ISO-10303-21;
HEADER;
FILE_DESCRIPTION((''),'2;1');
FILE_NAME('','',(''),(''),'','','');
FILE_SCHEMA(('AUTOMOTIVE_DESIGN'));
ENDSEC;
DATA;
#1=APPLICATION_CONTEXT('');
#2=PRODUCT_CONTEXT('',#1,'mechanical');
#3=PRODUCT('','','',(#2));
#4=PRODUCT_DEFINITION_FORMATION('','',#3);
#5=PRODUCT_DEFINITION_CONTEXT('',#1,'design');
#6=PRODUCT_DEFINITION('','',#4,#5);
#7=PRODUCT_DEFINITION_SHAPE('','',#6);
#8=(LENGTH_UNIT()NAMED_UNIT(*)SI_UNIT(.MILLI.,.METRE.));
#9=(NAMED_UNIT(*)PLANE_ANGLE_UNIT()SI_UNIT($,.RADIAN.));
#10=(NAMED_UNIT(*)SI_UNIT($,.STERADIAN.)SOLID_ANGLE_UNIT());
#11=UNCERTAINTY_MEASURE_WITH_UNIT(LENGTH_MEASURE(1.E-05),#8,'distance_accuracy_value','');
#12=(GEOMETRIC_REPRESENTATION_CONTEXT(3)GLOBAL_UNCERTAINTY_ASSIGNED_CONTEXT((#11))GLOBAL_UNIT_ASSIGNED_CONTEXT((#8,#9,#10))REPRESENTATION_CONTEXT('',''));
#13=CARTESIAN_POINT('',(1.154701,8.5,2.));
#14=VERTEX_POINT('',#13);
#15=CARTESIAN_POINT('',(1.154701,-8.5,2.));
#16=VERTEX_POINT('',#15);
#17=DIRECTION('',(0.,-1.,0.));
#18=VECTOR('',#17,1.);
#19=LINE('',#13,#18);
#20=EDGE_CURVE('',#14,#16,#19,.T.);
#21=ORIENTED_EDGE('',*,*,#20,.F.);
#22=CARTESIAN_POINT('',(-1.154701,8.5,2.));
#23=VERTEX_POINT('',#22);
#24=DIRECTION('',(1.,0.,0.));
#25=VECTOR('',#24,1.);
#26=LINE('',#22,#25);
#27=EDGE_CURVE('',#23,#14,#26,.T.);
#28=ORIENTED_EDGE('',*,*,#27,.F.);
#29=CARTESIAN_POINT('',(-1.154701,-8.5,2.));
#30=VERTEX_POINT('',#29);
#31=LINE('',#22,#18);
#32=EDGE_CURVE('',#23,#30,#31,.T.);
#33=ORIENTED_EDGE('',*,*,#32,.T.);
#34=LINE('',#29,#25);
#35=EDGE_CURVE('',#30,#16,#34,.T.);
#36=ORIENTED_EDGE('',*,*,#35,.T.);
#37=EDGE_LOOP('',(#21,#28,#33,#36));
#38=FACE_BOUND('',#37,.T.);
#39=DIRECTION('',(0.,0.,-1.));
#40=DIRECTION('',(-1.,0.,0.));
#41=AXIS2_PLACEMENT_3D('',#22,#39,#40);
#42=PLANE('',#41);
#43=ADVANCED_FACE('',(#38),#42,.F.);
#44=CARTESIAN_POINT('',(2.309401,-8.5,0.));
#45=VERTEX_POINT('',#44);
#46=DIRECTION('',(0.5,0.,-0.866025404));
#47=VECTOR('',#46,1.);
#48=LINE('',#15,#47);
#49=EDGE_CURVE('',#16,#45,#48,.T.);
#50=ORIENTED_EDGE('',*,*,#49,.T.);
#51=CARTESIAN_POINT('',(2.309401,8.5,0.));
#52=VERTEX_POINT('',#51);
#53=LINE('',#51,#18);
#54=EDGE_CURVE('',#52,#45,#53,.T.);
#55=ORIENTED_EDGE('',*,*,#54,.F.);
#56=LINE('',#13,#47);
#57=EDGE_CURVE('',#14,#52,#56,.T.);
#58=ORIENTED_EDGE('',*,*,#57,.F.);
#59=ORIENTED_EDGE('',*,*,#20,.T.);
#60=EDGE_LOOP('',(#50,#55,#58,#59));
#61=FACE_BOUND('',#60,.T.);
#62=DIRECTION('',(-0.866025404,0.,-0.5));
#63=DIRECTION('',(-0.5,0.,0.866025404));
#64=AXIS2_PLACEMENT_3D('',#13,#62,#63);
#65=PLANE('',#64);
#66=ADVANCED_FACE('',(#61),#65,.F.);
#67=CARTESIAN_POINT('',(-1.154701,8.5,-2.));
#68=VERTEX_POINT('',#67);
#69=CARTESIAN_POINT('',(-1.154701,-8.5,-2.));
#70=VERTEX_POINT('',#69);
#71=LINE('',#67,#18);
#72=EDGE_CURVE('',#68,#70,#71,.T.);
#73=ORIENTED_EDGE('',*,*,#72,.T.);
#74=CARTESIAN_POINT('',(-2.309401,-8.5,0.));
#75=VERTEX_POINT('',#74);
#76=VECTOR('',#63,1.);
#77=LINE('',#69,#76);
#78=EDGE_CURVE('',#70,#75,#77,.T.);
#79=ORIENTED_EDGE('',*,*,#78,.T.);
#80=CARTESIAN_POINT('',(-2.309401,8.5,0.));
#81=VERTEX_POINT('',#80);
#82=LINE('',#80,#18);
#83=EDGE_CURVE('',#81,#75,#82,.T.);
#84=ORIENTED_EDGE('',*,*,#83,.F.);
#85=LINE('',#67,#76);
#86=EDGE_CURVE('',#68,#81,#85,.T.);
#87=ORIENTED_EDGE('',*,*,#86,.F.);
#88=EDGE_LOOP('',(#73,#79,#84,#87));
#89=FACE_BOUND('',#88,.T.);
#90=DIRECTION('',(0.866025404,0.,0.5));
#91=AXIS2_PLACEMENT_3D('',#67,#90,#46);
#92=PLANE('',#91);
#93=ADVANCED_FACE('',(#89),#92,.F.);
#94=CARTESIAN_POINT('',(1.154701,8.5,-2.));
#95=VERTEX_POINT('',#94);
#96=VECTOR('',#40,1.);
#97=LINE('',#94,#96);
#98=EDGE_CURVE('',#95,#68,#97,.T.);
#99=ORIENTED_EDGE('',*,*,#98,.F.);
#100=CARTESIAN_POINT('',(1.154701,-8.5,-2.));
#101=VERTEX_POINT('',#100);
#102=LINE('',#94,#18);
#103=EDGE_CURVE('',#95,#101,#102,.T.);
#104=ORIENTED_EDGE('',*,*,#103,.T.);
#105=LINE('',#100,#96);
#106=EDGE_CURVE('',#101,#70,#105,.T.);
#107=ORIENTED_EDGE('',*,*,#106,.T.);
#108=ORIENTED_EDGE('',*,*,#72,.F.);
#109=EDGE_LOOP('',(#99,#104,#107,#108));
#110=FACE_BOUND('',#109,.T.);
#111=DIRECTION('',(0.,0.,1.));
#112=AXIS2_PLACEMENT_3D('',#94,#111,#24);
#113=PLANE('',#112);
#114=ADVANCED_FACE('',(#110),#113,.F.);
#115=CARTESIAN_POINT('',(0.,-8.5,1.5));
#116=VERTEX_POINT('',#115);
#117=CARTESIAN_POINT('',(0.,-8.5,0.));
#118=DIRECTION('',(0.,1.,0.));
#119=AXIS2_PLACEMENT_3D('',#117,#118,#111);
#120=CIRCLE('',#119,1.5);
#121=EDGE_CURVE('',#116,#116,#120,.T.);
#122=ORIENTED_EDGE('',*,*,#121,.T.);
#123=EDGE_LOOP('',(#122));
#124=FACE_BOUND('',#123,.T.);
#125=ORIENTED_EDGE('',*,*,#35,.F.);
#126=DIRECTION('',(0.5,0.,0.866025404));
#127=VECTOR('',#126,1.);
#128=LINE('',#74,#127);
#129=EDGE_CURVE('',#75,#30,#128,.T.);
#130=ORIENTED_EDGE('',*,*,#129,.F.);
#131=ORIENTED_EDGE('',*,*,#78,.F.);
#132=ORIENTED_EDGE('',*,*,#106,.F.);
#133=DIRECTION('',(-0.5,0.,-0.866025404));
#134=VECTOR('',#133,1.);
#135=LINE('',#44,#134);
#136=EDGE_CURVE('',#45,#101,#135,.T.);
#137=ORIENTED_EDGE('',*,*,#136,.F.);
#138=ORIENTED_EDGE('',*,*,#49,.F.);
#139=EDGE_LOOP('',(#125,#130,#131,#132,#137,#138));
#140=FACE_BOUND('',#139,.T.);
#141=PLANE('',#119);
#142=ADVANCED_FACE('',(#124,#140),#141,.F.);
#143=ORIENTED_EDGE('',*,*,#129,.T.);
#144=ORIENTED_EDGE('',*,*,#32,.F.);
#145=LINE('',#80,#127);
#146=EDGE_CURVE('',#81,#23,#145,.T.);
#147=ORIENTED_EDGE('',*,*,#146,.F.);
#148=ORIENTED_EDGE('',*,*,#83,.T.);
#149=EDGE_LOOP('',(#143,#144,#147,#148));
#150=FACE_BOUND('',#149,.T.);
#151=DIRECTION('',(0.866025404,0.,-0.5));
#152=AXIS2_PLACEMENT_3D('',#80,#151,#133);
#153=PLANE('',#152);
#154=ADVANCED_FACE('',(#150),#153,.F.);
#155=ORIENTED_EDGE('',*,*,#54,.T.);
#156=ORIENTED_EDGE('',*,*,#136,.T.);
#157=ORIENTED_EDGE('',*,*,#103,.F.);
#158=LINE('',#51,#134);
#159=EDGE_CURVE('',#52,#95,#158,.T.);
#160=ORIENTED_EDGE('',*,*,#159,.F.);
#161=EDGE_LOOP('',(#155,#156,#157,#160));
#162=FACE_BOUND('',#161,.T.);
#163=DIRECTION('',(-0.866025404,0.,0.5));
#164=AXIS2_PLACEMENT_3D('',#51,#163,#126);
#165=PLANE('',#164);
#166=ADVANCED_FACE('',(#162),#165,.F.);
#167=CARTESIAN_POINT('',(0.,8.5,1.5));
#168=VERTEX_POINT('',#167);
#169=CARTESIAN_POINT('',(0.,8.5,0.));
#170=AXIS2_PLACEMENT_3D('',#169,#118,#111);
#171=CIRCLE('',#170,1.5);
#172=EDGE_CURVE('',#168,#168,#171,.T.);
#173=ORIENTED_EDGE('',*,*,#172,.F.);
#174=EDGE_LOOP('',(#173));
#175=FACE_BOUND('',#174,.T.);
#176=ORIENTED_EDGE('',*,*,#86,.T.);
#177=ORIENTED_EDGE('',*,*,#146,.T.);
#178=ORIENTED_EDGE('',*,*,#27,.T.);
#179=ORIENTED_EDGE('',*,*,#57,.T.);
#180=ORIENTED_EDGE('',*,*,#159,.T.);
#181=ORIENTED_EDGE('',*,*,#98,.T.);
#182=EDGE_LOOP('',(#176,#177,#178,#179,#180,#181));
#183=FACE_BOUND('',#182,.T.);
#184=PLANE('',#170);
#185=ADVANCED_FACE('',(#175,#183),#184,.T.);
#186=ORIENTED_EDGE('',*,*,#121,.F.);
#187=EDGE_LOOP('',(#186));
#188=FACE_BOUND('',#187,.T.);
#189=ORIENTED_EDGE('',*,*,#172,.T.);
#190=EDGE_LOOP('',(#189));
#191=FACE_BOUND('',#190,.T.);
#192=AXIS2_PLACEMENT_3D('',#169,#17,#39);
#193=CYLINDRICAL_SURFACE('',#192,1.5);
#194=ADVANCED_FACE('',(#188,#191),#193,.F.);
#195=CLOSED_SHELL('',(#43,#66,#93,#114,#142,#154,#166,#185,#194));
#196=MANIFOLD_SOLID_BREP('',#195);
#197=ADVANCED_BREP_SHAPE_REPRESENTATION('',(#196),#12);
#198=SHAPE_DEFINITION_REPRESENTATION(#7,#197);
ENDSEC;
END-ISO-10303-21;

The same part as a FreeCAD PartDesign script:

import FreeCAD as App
import Part
import Sketcher
from FreeCAD import Vector
Q = App.Units.Quantity


def add_polygon(sketch, points):
    """Adds a closed chain of lines whose ends are joined by coincident constraints."""
    first, n = sketch.GeometryCount, len(points)
    for a, b in zip(points, points[1:] + points[:1]):
        sketch.addGeometry(Part.LineSegment(App.Vector(*a, 0), App.Vector(*b, 0)), False)
    for i in range(n):
        sketch.addConstraint(Sketcher.Constraint("Coincident", first + i, 2, first + (i + 1) % n, 1))

doc = App.newDocument("Part")
params = doc.addObject("Spreadsheet::Sheet", "Params")
for row, (alias, value) in enumerate([
    ("sketch1_diameter", "3 mm"),
    ("pad1_length", "17 mm"),
], start=1):
    params.set(f"A{row}", alias)
    params.set(f"B{row}", "=" + value)
    params.setAlias(f"B{row}", alias)

body = doc.addObject("PartDesign::Body", "Body")

sketch1 = body.newObject("Sketcher::SketchObject", "Sketch")
sketch1.AttachmentSupport = (doc.getObject("XZ_Plane"), [""])
sketch1.MapMode = "FlatFace"
add_polygon(sketch1, [(1.154701, -2), (-1.154701, -2), (-2.309401, 0), (-1.154701, 2), (1.154701, 2), (2.309401, 0)])
sketch1.addGeometry(Part.Circle(Vector(0, 0, 0), Vector(0, 0, 1), 1.5), False)
sketch1.addConstraint(Sketcher.Constraint("Horizontal", 0))
sketch1.addConstraint(Sketcher.Constraint("Horizontal", 3))
sketch1.addConstraint(Sketcher.Constraint("Coincident", 6, 3, -1, 1))
sketch1.addConstraint(Sketcher.Constraint("Symmetric", 0, 2, 3, 2, -1, 1))
sketch1.addConstraint(Sketcher.Constraint("Symmetric", 1, 2, 4, 2, -1, 1))
sketch1.addConstraint(Sketcher.Constraint("PointOnObject", 1, 2, -1))
sketch1.addConstraint(Sketcher.Constraint("Parallel", 2, 5))
sketch1.addConstraint(Sketcher.Constraint("Vertical", 0, 2, 2, 2))
sketch1.addConstraint(Sketcher.Constraint("Diameter", 6, 3.0))
sketch1.addConstraint(Sketcher.Constraint("Angle", 1, Q("120 deg")))
sketch1.addConstraint(Sketcher.Constraint("DistanceY", 0, 2, -1, 1, 2.0))
sketch1.addConstraint(Sketcher.Constraint("DistanceX", 0, 2, 0, 1, 2.309401))
sketch1.setExpression("Constraints[14]", "Params.sketch1_diameter")
pad1 = body.newObject("PartDesign::Pad", "Pad")
pad1.Profile = sketch1
pad1.setExpression("Length", "Params.pad1_length")
pad1.Midplane = True

doc.recompute()
